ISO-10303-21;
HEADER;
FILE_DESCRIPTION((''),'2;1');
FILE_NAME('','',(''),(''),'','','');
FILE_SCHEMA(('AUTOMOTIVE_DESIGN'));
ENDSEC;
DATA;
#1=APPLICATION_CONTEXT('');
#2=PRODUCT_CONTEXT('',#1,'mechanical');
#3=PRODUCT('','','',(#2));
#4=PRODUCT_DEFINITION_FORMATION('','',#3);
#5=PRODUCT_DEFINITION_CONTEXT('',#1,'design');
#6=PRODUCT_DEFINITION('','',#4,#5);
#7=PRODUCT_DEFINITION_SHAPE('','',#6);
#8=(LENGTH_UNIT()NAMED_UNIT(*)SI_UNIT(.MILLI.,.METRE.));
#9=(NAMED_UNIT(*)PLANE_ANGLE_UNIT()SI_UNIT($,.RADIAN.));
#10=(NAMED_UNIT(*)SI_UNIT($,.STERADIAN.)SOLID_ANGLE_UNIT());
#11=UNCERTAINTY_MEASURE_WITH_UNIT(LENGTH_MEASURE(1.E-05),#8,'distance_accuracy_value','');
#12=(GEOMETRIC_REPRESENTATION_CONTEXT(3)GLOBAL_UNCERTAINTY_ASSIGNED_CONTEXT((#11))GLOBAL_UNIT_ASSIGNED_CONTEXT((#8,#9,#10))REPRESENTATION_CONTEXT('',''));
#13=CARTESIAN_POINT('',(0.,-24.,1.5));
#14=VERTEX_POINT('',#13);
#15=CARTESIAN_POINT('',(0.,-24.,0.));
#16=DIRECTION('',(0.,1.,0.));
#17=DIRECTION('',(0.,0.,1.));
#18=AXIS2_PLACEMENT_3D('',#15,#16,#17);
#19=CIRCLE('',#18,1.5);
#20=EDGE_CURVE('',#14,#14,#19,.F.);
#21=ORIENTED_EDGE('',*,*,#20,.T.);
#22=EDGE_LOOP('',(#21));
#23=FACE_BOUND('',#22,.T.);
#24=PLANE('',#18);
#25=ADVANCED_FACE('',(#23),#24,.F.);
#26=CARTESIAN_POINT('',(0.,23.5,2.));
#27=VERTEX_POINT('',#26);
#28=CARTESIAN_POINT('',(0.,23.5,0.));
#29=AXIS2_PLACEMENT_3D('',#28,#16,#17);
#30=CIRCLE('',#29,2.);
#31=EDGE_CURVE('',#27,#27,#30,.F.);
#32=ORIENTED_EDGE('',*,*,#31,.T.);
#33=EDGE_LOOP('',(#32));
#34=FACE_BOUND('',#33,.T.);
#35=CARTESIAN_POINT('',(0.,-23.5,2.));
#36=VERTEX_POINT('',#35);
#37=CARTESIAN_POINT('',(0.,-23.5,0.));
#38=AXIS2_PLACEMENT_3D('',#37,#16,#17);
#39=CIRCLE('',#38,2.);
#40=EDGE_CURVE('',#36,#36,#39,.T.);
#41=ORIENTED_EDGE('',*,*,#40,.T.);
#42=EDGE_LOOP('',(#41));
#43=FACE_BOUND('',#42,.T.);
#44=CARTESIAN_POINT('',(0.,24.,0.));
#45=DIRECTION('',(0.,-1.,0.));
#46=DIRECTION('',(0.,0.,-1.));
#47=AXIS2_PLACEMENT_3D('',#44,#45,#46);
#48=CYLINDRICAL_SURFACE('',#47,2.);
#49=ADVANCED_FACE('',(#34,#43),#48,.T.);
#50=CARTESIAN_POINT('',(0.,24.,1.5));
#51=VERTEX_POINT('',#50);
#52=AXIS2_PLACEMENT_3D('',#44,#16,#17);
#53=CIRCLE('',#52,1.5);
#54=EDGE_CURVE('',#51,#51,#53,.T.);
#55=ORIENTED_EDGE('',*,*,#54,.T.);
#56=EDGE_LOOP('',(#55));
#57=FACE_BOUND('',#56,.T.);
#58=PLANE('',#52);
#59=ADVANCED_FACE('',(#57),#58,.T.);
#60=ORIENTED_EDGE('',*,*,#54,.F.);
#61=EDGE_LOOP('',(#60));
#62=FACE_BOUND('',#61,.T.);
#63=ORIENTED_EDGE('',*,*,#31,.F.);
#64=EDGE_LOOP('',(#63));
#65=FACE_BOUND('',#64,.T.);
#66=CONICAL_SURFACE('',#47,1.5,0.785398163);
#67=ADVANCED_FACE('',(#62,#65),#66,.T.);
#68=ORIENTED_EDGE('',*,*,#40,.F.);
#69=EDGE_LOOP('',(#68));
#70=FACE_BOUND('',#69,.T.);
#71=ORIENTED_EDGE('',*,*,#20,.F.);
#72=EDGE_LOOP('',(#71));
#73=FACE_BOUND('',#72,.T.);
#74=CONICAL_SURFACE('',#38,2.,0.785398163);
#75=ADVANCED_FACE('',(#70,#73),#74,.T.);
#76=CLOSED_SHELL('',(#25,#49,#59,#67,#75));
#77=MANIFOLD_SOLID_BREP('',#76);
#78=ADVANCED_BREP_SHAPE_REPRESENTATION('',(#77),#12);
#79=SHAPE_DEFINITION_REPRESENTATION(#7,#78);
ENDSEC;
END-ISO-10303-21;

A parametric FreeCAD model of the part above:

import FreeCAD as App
import Part
import Sketcher
Q = App.Units.Quantity


def edges_at(feature, points):
    """Names of the edges that pass closest to the given points."""
    edges = feature.Shape.Edges
    near = lambda p: min(range(len(edges)), key=lambda i: edges[i].distToShape(Part.Vertex(*p))[0])
    return sorted({f"Edge{near(p) + 1}" for p in points})

doc = App.newDocument("Part")
params = doc.addObject("Spreadsheet::Sheet", "Params")
for row, (alias, value) in enumerate([
    ("sketch1_diameter", "4 mm"),
    ("pad1_length", "48 mm"),
    ("chamfer_size", "0.5 mm"),
], start=1):
    params.set(f"A{row}", alias)
    params.set(f"B{row}", "=" + value)
    params.setAlias(f"B{row}", alias)

body = doc.addObject("PartDesign::Body", "Body")

sketch1 = doc.addObject("Sketcher::SketchObject", "Sketch")
body.addObject(sketch1)
sketch1.AttachmentSupport = (doc.XZ_Plane, [""])
sketch1.MapMode = "FlatFace"
sketch1.addGeometry(Part.Circle(App.Vector(0, 0, 0), App.Vector(0, 0, 1), 2), False)
sketch1.addConstraint(Sketcher.Constraint("Coincident", 0, 3, -1, 1))
sketch1.addConstraint(Sketcher.Constraint("Diameter", 0, Q("4 mm")))
sketch1.setExpression("Constraints[1]", "Params.sketch1_diameter")
pad1 = doc.addObject("PartDesign::Pad", "Pad")
body.addObject(pad1)
pad1.Profile = sketch1
pad1.setExpression("Length", "Params.pad1_length")
pad1.Midplane = True
doc.recompute()

chamfer = doc.addObject("PartDesign::Chamfer", "Chamfer")
body.addObject(chamfer)
chamfer.Base = (pad1, edges_at(pad1, [(0, -24, -2), (0, 24, -2)]))
chamfer.setExpression("Size", "Params.chamfer_size")

doc.recompute()
